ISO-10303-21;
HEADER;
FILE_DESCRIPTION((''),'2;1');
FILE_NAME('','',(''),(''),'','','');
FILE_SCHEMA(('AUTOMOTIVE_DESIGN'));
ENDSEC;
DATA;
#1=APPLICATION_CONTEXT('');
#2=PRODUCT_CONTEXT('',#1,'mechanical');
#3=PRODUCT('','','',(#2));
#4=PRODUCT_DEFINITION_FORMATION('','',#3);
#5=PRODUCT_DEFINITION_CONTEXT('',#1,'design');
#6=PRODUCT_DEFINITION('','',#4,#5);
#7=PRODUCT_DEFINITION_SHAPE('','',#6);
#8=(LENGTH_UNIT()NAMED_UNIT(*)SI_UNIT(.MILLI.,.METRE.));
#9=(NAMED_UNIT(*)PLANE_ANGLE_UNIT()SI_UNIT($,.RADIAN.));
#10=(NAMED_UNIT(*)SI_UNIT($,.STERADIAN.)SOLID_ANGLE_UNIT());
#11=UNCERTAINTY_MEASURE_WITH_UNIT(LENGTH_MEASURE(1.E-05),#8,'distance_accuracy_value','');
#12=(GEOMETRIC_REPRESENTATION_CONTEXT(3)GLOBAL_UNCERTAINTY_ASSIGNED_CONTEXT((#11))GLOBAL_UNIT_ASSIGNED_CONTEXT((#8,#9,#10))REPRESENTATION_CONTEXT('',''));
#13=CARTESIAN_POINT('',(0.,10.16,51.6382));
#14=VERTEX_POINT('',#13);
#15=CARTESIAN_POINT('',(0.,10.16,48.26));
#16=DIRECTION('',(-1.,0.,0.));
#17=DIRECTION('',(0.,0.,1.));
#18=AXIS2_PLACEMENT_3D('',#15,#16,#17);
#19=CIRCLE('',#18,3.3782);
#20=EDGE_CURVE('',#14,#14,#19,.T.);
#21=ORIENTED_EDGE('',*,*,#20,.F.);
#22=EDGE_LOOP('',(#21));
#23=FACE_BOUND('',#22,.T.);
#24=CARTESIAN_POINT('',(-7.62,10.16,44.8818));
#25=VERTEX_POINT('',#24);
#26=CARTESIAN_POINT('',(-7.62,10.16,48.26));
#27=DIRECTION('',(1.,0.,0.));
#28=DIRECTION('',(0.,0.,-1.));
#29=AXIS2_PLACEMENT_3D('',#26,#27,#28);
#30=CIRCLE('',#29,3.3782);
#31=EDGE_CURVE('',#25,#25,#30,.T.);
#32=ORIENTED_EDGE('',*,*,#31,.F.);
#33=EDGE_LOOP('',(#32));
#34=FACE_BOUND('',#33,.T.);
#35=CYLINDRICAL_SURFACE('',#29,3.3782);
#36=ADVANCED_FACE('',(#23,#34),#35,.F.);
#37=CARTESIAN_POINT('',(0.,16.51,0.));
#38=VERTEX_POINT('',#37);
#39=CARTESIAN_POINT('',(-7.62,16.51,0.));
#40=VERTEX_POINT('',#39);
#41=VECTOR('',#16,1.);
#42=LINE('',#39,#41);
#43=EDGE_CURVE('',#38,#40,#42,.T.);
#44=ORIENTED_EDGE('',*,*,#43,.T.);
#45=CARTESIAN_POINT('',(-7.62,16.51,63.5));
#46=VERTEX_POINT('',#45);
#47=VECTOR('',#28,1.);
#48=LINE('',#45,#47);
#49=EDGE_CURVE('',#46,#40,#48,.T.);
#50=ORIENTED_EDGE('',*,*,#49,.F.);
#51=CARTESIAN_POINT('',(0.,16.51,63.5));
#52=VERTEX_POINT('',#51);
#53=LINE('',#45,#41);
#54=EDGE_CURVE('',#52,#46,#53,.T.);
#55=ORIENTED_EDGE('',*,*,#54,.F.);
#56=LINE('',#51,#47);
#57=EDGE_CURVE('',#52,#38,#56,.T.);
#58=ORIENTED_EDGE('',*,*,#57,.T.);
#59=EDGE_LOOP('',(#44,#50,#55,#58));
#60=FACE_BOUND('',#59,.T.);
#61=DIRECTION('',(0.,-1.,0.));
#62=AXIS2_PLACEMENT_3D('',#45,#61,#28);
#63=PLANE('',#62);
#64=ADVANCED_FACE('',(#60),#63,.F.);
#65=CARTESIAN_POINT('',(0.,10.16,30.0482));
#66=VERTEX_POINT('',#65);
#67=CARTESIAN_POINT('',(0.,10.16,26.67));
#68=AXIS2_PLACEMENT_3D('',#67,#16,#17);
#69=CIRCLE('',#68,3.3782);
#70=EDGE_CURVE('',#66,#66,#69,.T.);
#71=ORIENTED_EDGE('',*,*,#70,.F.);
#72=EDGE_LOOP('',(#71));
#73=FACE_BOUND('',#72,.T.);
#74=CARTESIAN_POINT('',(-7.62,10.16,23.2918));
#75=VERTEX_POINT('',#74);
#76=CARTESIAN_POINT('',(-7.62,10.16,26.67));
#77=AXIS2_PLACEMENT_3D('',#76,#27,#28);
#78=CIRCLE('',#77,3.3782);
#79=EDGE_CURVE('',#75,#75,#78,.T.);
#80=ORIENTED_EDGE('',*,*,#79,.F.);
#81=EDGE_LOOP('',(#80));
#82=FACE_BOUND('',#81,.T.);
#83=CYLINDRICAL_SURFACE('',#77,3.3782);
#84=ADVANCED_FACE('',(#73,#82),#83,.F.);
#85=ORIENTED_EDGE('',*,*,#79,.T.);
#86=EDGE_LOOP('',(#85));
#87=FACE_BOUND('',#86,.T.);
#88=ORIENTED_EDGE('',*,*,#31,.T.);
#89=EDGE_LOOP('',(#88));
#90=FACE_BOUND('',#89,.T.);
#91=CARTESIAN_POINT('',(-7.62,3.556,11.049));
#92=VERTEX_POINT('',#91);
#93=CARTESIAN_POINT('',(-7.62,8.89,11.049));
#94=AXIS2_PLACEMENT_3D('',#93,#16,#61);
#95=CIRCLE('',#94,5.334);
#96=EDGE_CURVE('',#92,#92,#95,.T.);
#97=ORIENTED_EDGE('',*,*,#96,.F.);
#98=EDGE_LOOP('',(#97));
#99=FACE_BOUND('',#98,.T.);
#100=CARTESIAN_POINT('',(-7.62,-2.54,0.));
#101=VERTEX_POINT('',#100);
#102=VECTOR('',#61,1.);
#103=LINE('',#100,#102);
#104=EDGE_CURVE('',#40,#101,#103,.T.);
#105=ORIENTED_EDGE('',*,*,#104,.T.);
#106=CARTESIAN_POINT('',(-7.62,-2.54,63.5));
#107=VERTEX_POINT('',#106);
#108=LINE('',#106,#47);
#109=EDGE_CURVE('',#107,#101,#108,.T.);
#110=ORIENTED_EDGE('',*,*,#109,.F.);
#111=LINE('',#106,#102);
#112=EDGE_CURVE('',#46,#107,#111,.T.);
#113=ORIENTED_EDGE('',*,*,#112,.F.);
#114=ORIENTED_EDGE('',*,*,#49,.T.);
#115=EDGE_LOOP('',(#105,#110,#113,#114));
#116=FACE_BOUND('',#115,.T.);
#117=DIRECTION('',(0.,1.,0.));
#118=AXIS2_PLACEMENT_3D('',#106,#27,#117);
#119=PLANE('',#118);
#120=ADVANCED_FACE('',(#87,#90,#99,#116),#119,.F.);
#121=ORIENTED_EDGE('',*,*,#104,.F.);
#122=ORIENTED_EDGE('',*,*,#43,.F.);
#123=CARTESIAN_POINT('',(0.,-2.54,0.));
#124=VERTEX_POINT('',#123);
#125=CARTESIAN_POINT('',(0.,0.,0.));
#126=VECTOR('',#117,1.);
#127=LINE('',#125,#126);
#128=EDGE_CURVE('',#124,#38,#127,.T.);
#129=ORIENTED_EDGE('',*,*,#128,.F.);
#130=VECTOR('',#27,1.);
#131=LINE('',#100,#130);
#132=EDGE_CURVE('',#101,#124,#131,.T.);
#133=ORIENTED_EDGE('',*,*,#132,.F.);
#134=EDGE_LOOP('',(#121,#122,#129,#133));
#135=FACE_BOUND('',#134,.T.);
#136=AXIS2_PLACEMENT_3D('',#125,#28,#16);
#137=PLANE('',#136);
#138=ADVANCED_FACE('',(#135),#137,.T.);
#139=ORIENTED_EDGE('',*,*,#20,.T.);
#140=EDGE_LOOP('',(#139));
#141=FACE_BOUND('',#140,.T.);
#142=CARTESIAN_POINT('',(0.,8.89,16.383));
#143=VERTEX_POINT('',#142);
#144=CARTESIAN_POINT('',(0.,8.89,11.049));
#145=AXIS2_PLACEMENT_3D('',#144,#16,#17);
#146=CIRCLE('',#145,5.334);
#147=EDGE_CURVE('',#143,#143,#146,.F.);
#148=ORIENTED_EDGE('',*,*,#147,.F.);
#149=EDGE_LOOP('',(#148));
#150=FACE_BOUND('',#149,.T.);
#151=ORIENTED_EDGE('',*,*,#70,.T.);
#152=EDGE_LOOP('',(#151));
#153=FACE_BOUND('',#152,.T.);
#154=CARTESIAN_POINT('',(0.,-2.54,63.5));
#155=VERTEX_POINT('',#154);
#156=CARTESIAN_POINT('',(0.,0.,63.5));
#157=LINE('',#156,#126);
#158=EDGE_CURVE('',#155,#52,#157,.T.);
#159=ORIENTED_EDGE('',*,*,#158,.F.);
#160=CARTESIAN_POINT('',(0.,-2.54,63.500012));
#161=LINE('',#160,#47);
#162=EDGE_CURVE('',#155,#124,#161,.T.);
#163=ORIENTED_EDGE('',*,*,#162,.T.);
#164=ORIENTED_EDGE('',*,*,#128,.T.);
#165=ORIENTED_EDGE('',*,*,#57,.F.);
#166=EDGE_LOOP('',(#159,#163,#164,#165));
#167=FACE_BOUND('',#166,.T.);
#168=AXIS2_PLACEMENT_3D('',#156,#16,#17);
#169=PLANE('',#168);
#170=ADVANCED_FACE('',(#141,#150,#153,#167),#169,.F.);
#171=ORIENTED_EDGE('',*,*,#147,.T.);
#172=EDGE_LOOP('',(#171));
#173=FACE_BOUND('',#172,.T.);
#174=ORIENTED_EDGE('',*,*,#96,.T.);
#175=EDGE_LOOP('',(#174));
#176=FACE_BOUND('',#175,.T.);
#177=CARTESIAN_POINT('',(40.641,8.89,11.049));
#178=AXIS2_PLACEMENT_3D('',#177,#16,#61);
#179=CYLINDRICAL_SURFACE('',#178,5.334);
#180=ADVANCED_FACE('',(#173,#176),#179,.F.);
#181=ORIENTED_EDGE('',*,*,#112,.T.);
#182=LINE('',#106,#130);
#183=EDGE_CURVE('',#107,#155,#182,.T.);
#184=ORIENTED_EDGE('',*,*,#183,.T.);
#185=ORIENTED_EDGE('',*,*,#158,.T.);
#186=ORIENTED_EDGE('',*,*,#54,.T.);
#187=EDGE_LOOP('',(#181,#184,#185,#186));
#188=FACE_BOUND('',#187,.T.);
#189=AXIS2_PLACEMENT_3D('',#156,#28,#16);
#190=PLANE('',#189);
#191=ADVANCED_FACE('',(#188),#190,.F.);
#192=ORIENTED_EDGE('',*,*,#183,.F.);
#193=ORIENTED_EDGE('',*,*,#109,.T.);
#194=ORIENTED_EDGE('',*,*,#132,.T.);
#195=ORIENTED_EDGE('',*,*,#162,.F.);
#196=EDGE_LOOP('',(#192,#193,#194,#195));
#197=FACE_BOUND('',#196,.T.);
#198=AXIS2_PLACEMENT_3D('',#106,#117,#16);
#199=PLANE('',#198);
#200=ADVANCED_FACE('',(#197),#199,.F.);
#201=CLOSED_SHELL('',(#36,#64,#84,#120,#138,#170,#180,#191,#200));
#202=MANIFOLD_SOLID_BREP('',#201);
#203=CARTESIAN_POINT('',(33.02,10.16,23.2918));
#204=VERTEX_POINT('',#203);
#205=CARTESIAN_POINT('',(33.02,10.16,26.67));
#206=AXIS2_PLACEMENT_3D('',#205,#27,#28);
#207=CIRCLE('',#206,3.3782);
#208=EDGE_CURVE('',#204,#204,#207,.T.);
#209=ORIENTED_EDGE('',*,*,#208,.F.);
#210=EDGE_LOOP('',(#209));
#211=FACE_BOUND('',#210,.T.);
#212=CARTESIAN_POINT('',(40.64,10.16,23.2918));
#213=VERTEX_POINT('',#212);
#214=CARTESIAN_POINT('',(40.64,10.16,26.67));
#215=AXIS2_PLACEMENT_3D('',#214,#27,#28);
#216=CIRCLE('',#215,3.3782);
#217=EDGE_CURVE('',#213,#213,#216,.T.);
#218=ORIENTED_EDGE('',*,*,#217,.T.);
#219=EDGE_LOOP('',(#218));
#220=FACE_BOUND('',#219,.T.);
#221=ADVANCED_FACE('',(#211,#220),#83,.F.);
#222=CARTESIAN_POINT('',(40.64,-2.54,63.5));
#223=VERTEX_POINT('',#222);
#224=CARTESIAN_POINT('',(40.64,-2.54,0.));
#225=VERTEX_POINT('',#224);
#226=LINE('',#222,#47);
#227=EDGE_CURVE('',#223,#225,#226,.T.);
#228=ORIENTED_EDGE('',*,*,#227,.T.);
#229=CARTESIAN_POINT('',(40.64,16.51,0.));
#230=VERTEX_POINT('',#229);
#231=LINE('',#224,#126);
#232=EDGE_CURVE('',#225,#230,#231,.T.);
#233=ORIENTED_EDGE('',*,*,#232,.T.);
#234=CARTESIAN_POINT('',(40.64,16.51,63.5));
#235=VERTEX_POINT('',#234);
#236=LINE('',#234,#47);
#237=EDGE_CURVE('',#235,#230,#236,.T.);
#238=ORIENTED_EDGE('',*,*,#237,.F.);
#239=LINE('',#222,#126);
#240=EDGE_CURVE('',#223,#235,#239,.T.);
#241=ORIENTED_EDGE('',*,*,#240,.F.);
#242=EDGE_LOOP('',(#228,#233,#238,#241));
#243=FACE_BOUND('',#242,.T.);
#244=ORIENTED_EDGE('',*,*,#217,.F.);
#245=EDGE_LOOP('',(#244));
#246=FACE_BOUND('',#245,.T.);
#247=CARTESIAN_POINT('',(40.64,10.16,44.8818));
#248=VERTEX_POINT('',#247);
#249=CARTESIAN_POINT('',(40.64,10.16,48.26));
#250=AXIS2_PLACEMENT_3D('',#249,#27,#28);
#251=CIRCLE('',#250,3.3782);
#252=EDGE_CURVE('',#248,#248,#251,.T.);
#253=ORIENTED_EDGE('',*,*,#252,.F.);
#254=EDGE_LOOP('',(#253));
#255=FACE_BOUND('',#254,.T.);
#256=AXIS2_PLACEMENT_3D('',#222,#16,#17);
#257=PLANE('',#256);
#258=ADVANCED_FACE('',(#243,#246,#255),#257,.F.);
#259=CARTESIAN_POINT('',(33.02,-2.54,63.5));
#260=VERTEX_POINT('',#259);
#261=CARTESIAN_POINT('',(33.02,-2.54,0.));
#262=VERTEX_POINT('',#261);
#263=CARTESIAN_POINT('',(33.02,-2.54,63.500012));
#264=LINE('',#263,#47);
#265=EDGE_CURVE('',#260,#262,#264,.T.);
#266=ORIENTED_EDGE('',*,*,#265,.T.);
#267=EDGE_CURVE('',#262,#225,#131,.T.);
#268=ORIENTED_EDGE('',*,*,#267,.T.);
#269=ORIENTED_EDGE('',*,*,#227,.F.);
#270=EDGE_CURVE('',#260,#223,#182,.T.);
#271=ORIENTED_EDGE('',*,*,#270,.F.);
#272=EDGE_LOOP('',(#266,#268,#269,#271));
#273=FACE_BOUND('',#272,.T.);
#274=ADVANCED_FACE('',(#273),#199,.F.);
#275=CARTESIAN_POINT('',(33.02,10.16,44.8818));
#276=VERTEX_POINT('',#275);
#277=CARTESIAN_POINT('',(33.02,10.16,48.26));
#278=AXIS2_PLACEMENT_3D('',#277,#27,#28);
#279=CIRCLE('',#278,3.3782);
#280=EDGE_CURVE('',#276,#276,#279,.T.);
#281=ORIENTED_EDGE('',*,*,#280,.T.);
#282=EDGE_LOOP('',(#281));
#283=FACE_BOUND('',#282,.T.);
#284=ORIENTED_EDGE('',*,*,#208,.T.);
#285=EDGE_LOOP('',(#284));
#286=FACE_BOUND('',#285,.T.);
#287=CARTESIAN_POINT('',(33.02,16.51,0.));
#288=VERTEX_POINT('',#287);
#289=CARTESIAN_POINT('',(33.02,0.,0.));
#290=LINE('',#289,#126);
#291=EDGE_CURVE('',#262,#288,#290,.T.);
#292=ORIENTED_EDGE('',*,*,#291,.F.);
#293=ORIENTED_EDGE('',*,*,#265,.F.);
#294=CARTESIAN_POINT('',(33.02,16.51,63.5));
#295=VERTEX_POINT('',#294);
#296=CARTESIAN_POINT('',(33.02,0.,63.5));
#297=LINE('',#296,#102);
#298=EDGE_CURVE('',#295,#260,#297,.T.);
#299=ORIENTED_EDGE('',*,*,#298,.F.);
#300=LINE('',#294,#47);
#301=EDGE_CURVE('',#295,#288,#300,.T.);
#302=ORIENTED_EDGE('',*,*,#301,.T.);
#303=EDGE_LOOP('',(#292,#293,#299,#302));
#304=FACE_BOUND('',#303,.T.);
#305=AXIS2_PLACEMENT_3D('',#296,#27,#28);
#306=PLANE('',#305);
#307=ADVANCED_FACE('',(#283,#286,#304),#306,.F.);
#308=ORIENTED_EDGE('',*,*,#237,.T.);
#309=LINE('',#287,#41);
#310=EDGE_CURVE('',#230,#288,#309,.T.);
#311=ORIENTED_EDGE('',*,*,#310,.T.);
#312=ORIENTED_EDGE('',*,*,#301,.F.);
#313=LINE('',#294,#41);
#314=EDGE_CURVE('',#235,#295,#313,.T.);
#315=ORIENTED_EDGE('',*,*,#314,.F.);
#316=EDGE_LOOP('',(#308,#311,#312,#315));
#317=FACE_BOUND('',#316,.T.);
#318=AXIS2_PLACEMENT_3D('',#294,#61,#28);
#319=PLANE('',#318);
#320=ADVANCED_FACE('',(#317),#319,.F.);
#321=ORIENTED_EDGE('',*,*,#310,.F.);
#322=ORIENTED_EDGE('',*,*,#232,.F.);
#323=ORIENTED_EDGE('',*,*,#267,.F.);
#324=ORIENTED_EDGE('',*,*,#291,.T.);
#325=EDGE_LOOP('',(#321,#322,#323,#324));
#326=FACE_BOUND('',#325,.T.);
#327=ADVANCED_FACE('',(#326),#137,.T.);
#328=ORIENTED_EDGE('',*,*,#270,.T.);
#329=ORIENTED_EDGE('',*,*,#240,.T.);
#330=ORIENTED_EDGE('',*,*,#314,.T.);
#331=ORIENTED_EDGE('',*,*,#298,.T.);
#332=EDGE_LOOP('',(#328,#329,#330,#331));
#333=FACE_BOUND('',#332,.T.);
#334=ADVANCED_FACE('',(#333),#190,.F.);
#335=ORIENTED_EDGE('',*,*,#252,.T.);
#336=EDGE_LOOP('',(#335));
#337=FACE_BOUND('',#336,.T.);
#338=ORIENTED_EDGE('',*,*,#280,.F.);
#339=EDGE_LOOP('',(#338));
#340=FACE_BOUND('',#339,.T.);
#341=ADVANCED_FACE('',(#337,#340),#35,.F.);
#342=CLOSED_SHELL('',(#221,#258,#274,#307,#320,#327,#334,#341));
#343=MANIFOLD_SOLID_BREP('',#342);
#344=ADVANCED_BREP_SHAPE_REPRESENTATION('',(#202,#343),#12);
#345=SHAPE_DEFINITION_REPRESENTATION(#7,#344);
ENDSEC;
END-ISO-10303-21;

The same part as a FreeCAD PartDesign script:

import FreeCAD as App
import Part
import Sketcher
from FreeCAD import Vector
Q = App.Units.Quantity

doc = App.newDocument("Part")
body = doc.addObject("PartDesign::Body", "Body")
body.AllowCompound = True

sketch1 = body.newObject("Sketcher::SketchObject", "Sketch")
sketch1.AttachmentSupport = (doc.getObject("XY_Plane"), [""])
sketch1.MapMode = "FlatFace"
sketch1.addGeometry([
    Part.LineSegment(Vector(0, 17, 0), Vector(-8, 17, 0)),
    Part.LineSegment(Vector(-8, 17, 0), Vector(-8, -3, 0)),
    Part.LineSegment(Vector(-8, -3, 0), Vector(41, -3, 0)),
    Part.LineSegment(Vector(41, -3, 0), Vector(41, 17, 0)),
    Part.LineSegment(Vector(41, 17, 0), Vector(33, 17, 0)),
    Part.LineSegment(Vector(33, 17, 0), Vector(33, 0, 0)),
    Part.LineSegment(Vector(33, 0, 0), Vector(0, 0, 0)),
    Part.LineSegment(Vector(0, 0, 0), Vector(0, 17, 0)),
], False)
sketch1.addConstraint([
    Sketcher.Constraint("Coincident", 0, 2, 1, 1),
    Sketcher.Constraint("Coincident", 1, 2, 2, 1),
    Sketcher.Constraint("Coincident", 2, 2, 3, 1),
    Sketcher.Constraint("Coincident", 3, 2, 4, 1),
    Sketcher.Constraint("Coincident", 4, 2, 5, 1),
    Sketcher.Constraint("Coincident", 5, 2, 6, 1),
    Sketcher.Constraint("Coincident", 6, 2, 7, 1),
    Sketcher.Constraint("Coincident", 7, 2, 0, 1),
    Sketcher.Constraint("Horizontal", 0),
    Sketcher.Constraint("Vertical", 1),
    Sketcher.Constraint("Horizontal", 2),
    Sketcher.Constraint("Vertical", 3),
    Sketcher.Constraint("Horizontal", 4),
    Sketcher.Constraint("Vertical", 5),
    Sketcher.Constraint("Horizontal", 6),
    Sketcher.Constraint("Vertical", 7),
    Sketcher.Constraint("Coincident", 6, 2, -1, 1),
    Sketcher.Constraint("Horizontal", 0, 2, 3, 2),
    Sketcher.Constraint("Equal", 0, 4),
    Sketcher.Constraint("DistanceX", 0, 2, 0, 1, Q("0.3 in")),
    Sketcher.Constraint("DistanceX", 2, 1, 2, 2, Q("1.9 in")),
    Sketcher.Constraint("DistanceY", 1, 2, 1, 1, Q("0.75 in")),
    Sketcher.Constraint("DistanceY", 5, 2, 5, 1, Q("0.65 in")),
])
pad1 = body.newObject("PartDesign::Pad", "Pad")
pad1.Profile = sketch1
pad1.Length = Q("2.5 in")

sketch2 = body.newObject("Sketcher::SketchObject", "Sketch001")
sketch2.AttachmentSupport = (doc.getObject("YZ_Plane"), [""])
sketch2.MapMode = "FlatFace"
sketch2.AttachmentOffset = App.Placement(Vector(0, 0, -0.3 * 25.4), App.Rotation())
sketch2.addGeometry(Part.Circle(Vector(9, 11, 0), Vector(0, 0, 1), 5), False)
sketch2.addConstraint([
    Sketcher.Constraint("Diameter", 0, Q("0.42 in")),
    Sketcher.Constraint("DistanceX", -1, 1, 0, 3, Q("0.35 in")),
    Sketcher.Constraint("DistanceY", -1, 1, 0, 3, Q("0.435 in")),
])
pocket1 = body.newObject("PartDesign::Pocket", "Pocket")
pocket1.Profile = sketch2
pocket1.Type = "UpToFirst"
pocket1.Reversed = True

sketch3 = body.newObject("Sketcher::SketchObject", "Sketch002")
sketch3.AttachmentSupport = (doc.getObject("YZ_Plane"), [""])
sketch3.MapMode = "FlatFace"
sketch3.AttachmentOffset = App.Placement(Vector(0, 0, 1.6 * 25.4), App.Rotation())
sketch3.addGeometry(Part.Circle(Vector(10.2, 48.3, 0), Vector(0, 0, 1), 3.4), False)
sketch3.addConstraint([
    Sketcher.Constraint("Diameter", 0, Q("0.266 in")),
    Sketcher.Constraint("DistanceX", -1, 1, 0, 3, Q("0.4 in")),
    Sketcher.Constraint("DistanceY", -1, 1, 0, 3, Q("1.9 in")),
])
pocket2 = body.newObject("PartDesign::Pocket", "Pocket001")
pocket2.Profile = sketch3
pocket2.Type = "ThroughAll"

sketch4 = body.newObject("Sketcher::SketchObject", "Sketch003")
sketch4.AttachmentSupport = (doc.getObject("XY_Plane"), [""])
sketch4.MapMode = "FlatFace"
sketch4.AttachmentOffset = App.Placement(Vector(0, 0, 2.5 * 25.4), App.Rotation())
sketch4.addGeometry([
    Part.LineSegment(Vector(0, 0, 0), Vector(0, -2.5, 0)),
    Part.LineSegment(Vector(0, -2.5, 0), Vector(33, -2.5, 0)),
    Part.LineSegment(Vector(33, -2.5, 0), Vector(33, 0, 0)),
    Part.LineSegment(Vector(33, 0, 0), Vector(0, 0, 0)),
], False)
sketch4.addConstraint([
    Sketcher.Constraint("Coincident", 0, 2, 1, 1),
    Sketcher.Constraint("Coincident", 1, 2, 2, 1),
    Sketcher.Constraint("Coincident", 2, 2, 3, 1),
    Sketcher.Constraint("Coincident", 3, 2, 0, 1),
    Sketcher.Constraint("Vertical", 0),
    Sketcher.Constraint("Horizontal", 1),
    Sketcher.Constraint("Vertical", 2),
    Sketcher.Constraint("Horizontal", 3),
    Sketcher.Constraint("Coincident", 3, 2, -1, 1),
    Sketcher.Constraint("DistanceX", 1, 1, 1, 2, Q("1.3 in")),
    Sketcher.Constraint("DistanceY", 0, 2, 0, 1, Q("0.1 in")),
])
pocket3 = body.newObject("PartDesign::Pocket", "Pocket002")
pocket3.Profile = sketch4
pocket3.Type = "UpToFirst"

sketch5 = body.newObject("Sketcher::SketchObject", "Sketch004")
sketch5.AttachmentSupport = (doc.getObject("XY_Plane"), [""])
sketch5.MapMode = "FlatFace"
sketch5.AttachmentOffset = App.Placement(Vector(0, 0, 2.5 * 25.4), App.Rotation())
sketch5.addGeometry([
    Part.LineSegment(Vector(0, 0, 0), Vector(0, -2.5, 0)),
    Part.LineSegment(Vector(0, -2.5, 0), Vector(33, -2.5, 0)),
    Part.LineSegment(Vector(33, -2.5, 0), Vector(33, 0, 0)),
    Part.LineSegment(Vector(33, 0, 0), Vector(0, 0, 0)),
], False)
sketch5.addConstraint([
    Sketcher.Constraint("Coincident", 0, 2, 1, 1),
    Sketcher.Constraint("Coincident", 1, 2, 2, 1),
    Sketcher.Constraint("Coincident", 2, 2, 3, 1),
    Sketcher.Constraint("Coincident", 3, 2, 0, 1),
    Sketcher.Constraint("Vertical", 0),
    Sketcher.Constraint("Horizontal", 1),
    Sketcher.Constraint("Vertical", 2),
    Sketcher.Constraint("Horizontal", 3),
    Sketcher.Constraint("Coincident", 3, 2, -1, 1),
    Sketcher.Constraint("DistanceX", 1, 1, 1, 2, Q("1.3 in")),
    Sketcher.Constraint("DistanceY", 0, 2, 0, 1, Q("0.1 in")),
])
pocket4 = body.newObject("PartDesign::Pocket", "Pocket003")
pocket4.Profile = sketch5
pocket4.Length = 1
pocket4.Reversed = True

sketch6 = body.newObject("Sketcher::SketchObject", "Sketch005")
sketch6.AttachmentSupport = (doc.getObject("YZ_Plane"), [""])
sketch6.MapMode = "FlatFace"
sketch6.AttachmentOffset = App.Placement(Vector(0, 0, 1.6 * 25.4), App.Rotation())
sketch6.addGeometry(Part.Circle(Vector(10.2, 26.7, 0), Vector(0, 0, 1), 3.4), False)
sketch6.addConstraint([
    Sketcher.Constraint("Diameter", 0, Q("0.266 in")),
    Sketcher.Constraint("DistanceX", -1, 1, 0, 3, Q("0.4 in")),
    Sketcher.Constraint("DistanceY", -1, 1, 0, 3, Q("1.05 in")),
])
pocket5 = body.newObject("PartDesign::Pocket", "Pocket004")
pocket5.Profile = sketch6
pocket5.Type = "ThroughAll"

doc.recompute()
